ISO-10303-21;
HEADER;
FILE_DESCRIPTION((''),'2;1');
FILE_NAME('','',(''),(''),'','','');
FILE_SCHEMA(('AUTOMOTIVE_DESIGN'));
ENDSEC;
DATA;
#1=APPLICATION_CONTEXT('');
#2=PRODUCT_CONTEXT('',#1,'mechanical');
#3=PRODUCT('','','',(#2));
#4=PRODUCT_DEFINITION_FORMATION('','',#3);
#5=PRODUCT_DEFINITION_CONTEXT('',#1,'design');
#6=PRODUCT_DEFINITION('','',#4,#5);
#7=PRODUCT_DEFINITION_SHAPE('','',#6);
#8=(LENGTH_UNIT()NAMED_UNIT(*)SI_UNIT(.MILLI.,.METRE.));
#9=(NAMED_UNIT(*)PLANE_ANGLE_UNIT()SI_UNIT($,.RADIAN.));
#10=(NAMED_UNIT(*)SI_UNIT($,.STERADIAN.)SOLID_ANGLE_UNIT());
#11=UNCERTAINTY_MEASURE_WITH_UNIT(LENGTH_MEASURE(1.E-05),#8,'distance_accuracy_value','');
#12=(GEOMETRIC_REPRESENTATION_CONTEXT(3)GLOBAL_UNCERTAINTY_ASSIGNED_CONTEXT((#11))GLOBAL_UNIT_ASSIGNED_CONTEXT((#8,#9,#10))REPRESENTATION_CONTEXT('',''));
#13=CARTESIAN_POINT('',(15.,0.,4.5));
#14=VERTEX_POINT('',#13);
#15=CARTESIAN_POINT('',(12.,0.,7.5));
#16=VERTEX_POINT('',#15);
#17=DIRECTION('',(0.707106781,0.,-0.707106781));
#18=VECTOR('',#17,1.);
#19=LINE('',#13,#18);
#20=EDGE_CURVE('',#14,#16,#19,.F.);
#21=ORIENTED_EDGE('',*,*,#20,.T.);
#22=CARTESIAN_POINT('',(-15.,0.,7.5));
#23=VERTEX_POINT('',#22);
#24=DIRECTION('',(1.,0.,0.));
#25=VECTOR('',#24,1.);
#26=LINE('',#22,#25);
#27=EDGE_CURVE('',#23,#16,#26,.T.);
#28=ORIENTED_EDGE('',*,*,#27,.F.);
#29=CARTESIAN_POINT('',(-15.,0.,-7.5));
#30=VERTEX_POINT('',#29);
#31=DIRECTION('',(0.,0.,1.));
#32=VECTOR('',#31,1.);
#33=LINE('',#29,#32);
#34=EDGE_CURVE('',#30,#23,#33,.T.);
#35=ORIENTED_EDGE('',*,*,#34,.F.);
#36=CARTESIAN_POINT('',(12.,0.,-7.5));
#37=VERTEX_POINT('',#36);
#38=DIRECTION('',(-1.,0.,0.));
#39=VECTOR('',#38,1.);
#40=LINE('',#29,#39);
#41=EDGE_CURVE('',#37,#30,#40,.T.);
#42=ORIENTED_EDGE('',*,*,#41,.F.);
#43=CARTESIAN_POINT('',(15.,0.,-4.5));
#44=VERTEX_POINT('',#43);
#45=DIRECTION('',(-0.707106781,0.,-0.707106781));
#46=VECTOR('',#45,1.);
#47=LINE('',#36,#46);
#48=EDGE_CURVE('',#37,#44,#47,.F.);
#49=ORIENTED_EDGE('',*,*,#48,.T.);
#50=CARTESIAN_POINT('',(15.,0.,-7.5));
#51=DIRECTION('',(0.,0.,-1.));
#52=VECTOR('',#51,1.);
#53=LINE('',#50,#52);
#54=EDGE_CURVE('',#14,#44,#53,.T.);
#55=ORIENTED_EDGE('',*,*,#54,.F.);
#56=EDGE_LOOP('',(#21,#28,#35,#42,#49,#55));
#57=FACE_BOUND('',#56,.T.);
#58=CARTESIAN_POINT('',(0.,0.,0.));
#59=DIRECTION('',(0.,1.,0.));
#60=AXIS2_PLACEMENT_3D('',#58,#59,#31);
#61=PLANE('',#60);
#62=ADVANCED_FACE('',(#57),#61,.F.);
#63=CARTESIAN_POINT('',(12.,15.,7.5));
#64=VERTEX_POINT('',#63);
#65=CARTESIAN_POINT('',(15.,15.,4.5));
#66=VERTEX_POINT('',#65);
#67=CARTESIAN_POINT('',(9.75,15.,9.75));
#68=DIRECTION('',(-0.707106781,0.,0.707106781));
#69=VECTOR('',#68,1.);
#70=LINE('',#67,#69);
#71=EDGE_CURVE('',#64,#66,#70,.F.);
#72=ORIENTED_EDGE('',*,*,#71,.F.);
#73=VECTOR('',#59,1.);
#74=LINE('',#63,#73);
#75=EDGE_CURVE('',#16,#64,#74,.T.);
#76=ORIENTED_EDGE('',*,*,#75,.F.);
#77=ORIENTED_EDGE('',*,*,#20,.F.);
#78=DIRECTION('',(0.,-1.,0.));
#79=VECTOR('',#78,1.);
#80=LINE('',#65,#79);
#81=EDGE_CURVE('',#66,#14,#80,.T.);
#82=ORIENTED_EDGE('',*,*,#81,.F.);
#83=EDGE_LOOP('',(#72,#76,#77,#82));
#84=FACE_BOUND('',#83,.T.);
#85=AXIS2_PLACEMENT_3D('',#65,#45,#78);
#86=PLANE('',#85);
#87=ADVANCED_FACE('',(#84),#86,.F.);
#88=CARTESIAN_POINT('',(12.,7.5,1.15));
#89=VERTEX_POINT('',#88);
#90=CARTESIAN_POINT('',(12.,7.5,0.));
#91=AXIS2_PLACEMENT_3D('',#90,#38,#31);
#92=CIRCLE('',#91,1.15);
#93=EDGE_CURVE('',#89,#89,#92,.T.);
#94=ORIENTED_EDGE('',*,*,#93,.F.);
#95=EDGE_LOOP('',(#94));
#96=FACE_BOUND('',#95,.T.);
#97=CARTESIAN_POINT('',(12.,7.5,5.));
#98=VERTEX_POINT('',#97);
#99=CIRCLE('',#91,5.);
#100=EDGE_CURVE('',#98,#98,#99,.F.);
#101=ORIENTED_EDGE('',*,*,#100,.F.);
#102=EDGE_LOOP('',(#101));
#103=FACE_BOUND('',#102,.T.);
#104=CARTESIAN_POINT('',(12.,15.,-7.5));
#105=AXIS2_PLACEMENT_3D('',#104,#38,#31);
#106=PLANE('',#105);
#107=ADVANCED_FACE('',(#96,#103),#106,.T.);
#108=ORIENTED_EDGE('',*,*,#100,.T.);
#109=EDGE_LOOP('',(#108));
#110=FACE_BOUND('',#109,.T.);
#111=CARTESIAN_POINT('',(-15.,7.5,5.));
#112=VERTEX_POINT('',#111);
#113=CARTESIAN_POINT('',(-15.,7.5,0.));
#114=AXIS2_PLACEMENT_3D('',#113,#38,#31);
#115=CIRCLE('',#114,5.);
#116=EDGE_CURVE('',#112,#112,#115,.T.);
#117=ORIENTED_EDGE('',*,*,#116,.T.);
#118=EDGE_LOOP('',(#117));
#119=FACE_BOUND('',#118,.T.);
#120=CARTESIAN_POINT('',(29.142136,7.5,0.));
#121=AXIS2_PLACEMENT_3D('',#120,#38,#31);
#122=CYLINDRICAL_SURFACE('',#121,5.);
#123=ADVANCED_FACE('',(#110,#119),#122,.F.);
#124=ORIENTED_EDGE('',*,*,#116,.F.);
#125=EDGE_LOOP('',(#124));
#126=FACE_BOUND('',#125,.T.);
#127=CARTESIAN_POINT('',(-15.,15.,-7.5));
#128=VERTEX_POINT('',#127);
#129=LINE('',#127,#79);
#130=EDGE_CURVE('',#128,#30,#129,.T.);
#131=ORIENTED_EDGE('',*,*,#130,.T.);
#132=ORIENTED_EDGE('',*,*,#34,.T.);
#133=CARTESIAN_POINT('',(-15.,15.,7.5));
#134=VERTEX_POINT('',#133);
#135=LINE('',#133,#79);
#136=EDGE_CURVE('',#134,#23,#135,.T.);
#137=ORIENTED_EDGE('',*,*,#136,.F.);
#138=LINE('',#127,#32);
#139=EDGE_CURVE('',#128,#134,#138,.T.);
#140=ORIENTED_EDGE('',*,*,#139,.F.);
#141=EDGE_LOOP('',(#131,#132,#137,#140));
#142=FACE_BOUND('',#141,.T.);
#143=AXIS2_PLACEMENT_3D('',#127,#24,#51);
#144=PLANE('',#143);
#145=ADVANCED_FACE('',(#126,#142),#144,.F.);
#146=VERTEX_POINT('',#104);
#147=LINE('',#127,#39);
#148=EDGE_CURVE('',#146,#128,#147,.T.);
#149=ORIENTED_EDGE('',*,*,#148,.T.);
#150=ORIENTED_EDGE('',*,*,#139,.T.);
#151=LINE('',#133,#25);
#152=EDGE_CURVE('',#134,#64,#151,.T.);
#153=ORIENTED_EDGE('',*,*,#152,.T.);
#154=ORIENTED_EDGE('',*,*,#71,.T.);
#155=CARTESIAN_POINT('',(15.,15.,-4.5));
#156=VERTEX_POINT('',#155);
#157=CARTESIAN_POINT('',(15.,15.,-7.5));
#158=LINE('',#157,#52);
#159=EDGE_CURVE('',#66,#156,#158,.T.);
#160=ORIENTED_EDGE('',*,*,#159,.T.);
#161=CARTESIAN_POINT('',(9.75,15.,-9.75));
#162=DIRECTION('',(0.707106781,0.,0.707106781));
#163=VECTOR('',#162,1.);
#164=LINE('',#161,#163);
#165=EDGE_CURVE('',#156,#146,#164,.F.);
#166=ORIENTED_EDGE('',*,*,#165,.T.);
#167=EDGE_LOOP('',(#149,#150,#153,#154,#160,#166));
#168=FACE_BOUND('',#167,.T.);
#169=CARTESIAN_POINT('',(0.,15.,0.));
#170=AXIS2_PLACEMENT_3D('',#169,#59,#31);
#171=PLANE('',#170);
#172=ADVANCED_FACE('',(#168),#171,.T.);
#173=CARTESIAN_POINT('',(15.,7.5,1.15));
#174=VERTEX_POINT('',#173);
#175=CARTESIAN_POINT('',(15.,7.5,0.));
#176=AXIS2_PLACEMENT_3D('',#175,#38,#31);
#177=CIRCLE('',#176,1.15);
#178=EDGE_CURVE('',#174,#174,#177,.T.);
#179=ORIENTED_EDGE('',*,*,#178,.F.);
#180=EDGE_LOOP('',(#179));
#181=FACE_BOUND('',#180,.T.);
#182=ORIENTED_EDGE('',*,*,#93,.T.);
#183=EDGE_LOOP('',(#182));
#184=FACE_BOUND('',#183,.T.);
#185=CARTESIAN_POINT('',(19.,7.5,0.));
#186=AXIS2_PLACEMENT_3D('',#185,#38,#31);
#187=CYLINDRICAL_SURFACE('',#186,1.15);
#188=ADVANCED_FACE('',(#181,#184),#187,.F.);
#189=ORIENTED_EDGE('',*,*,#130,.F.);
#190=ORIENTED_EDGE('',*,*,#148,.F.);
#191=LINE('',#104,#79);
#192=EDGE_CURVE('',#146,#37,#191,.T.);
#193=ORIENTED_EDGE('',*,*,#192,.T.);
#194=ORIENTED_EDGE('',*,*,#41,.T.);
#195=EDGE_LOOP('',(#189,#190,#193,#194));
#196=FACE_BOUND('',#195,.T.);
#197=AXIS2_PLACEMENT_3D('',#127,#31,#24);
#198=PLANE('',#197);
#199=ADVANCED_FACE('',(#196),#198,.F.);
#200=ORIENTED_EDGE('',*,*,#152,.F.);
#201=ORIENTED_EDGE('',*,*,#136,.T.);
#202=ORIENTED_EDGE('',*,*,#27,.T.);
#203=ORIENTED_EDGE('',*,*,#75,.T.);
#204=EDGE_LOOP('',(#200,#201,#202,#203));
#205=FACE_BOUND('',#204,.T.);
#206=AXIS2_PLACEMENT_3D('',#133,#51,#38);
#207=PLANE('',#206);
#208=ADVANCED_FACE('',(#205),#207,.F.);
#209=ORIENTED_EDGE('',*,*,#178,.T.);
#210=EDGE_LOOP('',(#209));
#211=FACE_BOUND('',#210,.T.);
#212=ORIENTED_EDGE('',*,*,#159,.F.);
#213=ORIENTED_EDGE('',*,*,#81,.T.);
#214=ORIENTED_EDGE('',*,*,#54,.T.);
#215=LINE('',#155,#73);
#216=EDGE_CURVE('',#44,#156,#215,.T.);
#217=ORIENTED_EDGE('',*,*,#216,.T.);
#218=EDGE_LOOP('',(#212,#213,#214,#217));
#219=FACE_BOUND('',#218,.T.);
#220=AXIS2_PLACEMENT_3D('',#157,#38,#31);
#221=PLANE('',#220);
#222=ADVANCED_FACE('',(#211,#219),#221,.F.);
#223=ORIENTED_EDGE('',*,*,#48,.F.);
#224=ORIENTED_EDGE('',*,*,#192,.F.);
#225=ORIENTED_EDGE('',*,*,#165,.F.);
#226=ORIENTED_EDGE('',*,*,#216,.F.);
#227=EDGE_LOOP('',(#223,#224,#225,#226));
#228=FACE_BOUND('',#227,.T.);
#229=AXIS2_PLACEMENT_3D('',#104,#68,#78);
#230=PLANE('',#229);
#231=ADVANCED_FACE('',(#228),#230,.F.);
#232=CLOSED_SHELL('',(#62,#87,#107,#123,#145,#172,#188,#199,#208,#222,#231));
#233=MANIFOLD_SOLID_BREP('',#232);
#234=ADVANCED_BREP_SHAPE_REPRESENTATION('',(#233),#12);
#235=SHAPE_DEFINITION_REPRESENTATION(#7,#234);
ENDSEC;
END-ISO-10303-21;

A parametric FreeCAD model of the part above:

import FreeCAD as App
import Part
import Sketcher

V = App.Vector
Q = App.Units.Quantity


def edges_at(feature, points):
    """Names of the edges that pass closest to the given points."""
    edges = feature.Shape.Edges
    near = lambda p: min(range(len(edges)), key=lambda i: edges[i].distToShape(Part.Vertex(*p))[0])
    return sorted({f"Edge{near(p) + 1}" for p in points})


def add_polygon(sketch, points):
    """Adds a closed chain of lines whose ends are joined by coincident constraints."""
    first, n = sketch.GeometryCount, len(points)
    for a, b in zip(points, points[1:] + points[:1]):
        sketch.addGeometry(Part.LineSegment(App.Vector(*a, 0), App.Vector(*b, 0)), False)
    for i in range(n):
        sketch.addConstraint(Sketcher.Constraint("Coincident", first + i, 2, first + (i + 1) % n, 1))

doc = App.newDocument("Part")
body = doc.addObject("PartDesign::Body", "Body")

sketch1 = body.newObject("Sketcher::SketchObject", "Sketch")
sketch1.AttachmentSupport = (doc.getObject("XZ_Plane"), [""])
sketch1.MapMode = "FlatFace"
add_polygon(sketch1, [(-15, -8), (-15, 8), (15, 8), (15, -8)])
sketch1.addConstraint([
    Sketcher.Constraint("Vertical", 0),
    Sketcher.Constraint("Horizontal", 1),
    Sketcher.Constraint("Vertical", 2),
    Sketcher.Constraint("Horizontal", 3),
    Sketcher.Constraint("Symmetric", 0, 2, 2, 2, -1, 1),
    Sketcher.Constraint("DistanceX", 1, 1, 1, 2, Q("30 mm")),
    Sketcher.Constraint("DistanceY", 0, 1, 0, 2, Q("15 mm")),
])
pad1 = body.newObject("PartDesign::Pad", "Pad")
pad1.Profile = sketch1
pad1.Length = 15
pad1.Reversed = True
doc.recompute()

chamfer = body.newObject("PartDesign::Chamfer", "Chamfer")
chamfer.Base = (pad1, edges_at(pad1, [(15, 7.5, 7.5), (15, 7.5, -7.5)]))
chamfer.Size = 3

sketch2 = body.newObject("Sketcher::SketchObject", "Sketch001")
sketch2.AttachmentSupport = (doc.getObject("YZ_Plane"), [""])
sketch2.MapMode = "FlatFace"
sketch2.AttachmentOffset = App.Placement(V(0, 0, -15), App.Rotation())
sketch2.addGeometry(Part.Circle(V(8, 0, 0), V(0, 0, 1), 5), False)
sketch2.addConstraint([
    Sketcher.Constraint("PointOnObject", 0, 3, -1),
    Sketcher.Constraint("Diameter", 0, Q("10 mm")),
    Sketcher.Constraint("DistanceX", -1, 1, 0, 3, Q("7.5 mm")),
])
pocket1 = body.newObject("PartDesign::Pocket", "Pocket")
pocket1.Profile = sketch2
pocket1.Length = 27
pocket1.Reversed = True

sketch3 = body.newObject("Sketcher::SketchObject", "Sketch002")
sketch3.AttachmentSupport = (doc.getObject("YZ_Plane"), [""])
sketch3.MapMode = "FlatFace"
sketch3.AttachmentOffset = App.Placement(V(0, 0, 12), App.Rotation())
sketch3.addGeometry(Part.Circle(V(7.5, 0, 0), V(0, 0, 1), 1.1), False)
sketch3.addConstraint([
    Sketcher.Constraint("PointOnObject", 0, 3, -1),
    Sketcher.Constraint("Diameter", 0, Q("2.3 mm")),
    Sketcher.Constraint("DistanceX", -1, 1, 0, 3, Q("7.5 mm")),
])
pocket2 = body.newObject("PartDesign::Pocket", "Pocket001")
pocket2.Profile = sketch3
pocket2.Length = 7
pocket2.Reversed = True

doc.recompute()
